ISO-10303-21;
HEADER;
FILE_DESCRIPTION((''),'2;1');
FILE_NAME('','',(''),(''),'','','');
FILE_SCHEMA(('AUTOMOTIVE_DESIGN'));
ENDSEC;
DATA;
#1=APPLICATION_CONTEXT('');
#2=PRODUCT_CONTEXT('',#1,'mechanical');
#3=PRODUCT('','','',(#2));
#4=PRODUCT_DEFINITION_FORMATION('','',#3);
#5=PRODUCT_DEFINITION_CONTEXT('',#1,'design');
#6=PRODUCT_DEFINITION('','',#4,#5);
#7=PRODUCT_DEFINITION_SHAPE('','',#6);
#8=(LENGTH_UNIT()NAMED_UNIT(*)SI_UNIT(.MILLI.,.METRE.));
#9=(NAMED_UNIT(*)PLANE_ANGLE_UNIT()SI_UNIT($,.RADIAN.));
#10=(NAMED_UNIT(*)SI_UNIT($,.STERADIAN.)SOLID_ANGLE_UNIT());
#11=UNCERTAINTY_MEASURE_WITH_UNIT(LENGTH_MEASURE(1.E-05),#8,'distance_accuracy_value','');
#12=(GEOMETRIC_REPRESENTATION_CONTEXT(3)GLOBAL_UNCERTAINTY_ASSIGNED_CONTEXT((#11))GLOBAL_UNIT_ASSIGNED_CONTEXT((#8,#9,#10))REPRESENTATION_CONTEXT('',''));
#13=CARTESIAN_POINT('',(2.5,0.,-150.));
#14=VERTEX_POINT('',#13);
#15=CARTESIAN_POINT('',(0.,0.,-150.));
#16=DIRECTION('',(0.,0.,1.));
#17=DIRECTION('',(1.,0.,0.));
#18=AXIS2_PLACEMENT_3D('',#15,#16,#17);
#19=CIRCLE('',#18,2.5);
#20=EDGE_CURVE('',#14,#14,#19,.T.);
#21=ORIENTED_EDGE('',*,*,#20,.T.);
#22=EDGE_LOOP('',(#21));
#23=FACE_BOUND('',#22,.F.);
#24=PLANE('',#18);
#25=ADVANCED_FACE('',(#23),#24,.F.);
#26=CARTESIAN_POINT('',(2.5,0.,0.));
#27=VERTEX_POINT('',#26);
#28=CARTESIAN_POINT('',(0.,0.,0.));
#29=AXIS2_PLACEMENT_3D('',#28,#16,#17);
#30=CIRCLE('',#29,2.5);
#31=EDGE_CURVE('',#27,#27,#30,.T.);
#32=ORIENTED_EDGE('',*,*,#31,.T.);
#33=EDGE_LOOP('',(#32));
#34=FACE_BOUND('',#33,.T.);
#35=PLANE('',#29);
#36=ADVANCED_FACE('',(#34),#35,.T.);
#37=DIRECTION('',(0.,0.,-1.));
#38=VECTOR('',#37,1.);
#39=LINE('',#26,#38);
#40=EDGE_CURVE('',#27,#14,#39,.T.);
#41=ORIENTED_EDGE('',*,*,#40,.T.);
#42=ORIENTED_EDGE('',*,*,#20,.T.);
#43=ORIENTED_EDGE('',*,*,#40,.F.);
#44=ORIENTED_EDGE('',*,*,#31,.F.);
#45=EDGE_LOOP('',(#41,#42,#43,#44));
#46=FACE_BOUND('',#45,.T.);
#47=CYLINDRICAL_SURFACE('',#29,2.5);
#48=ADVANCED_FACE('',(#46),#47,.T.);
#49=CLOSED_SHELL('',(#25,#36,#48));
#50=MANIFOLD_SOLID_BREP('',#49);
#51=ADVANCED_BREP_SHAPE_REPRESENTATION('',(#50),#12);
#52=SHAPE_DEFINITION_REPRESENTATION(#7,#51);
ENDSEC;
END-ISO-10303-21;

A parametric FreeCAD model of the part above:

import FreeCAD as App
import Part
import Sketcher

V = App.Vector
Q = App.Units.Quantity

doc = App.newDocument("Part")
params = doc.addObject("Spreadsheet::Sheet", "Params")
for row, (alias, value) in enumerate([
    ("sketch1_diameter", "5 mm"),
    ("pad1_length", "150 mm"),
], start=1):
    params.set(f"A{row}", alias)
    params.set(f"B{row}", "=" + value)
    params.setAlias(f"B{row}", alias)

body = doc.addObject("PartDesign::Body", "Body")

# Sketch on XY plane
sketch1 = doc.addObject("Sketcher::SketchObject", "Sketch")
body.addObject(sketch1)
sketch1.AttachmentSupport = (doc.XY_Plane, [""])
sketch1.MapMode = "FlatFace"
sketch1.addGeometry(Part.Circle(V(0, 0, 0), V(0, 0, 1), 2.5), False)
sketch1.addConstraint(Sketcher.Constraint("Coincident", 0, 3, -1, 1))
sketch1.addConstraint(Sketcher.Constraint("Diameter", 0, Q("5 mm")))
sketch1.setExpression("Constraints[1]", "Params.sketch1_diameter")
pad1 = doc.addObject("PartDesign::Pad", "Pad")
body.addObject(pad1)
pad1.Profile = sketch1
pad1.setExpression("Length", "Params.pad1_length")
pad1.Reversed = True

doc.recompute()
